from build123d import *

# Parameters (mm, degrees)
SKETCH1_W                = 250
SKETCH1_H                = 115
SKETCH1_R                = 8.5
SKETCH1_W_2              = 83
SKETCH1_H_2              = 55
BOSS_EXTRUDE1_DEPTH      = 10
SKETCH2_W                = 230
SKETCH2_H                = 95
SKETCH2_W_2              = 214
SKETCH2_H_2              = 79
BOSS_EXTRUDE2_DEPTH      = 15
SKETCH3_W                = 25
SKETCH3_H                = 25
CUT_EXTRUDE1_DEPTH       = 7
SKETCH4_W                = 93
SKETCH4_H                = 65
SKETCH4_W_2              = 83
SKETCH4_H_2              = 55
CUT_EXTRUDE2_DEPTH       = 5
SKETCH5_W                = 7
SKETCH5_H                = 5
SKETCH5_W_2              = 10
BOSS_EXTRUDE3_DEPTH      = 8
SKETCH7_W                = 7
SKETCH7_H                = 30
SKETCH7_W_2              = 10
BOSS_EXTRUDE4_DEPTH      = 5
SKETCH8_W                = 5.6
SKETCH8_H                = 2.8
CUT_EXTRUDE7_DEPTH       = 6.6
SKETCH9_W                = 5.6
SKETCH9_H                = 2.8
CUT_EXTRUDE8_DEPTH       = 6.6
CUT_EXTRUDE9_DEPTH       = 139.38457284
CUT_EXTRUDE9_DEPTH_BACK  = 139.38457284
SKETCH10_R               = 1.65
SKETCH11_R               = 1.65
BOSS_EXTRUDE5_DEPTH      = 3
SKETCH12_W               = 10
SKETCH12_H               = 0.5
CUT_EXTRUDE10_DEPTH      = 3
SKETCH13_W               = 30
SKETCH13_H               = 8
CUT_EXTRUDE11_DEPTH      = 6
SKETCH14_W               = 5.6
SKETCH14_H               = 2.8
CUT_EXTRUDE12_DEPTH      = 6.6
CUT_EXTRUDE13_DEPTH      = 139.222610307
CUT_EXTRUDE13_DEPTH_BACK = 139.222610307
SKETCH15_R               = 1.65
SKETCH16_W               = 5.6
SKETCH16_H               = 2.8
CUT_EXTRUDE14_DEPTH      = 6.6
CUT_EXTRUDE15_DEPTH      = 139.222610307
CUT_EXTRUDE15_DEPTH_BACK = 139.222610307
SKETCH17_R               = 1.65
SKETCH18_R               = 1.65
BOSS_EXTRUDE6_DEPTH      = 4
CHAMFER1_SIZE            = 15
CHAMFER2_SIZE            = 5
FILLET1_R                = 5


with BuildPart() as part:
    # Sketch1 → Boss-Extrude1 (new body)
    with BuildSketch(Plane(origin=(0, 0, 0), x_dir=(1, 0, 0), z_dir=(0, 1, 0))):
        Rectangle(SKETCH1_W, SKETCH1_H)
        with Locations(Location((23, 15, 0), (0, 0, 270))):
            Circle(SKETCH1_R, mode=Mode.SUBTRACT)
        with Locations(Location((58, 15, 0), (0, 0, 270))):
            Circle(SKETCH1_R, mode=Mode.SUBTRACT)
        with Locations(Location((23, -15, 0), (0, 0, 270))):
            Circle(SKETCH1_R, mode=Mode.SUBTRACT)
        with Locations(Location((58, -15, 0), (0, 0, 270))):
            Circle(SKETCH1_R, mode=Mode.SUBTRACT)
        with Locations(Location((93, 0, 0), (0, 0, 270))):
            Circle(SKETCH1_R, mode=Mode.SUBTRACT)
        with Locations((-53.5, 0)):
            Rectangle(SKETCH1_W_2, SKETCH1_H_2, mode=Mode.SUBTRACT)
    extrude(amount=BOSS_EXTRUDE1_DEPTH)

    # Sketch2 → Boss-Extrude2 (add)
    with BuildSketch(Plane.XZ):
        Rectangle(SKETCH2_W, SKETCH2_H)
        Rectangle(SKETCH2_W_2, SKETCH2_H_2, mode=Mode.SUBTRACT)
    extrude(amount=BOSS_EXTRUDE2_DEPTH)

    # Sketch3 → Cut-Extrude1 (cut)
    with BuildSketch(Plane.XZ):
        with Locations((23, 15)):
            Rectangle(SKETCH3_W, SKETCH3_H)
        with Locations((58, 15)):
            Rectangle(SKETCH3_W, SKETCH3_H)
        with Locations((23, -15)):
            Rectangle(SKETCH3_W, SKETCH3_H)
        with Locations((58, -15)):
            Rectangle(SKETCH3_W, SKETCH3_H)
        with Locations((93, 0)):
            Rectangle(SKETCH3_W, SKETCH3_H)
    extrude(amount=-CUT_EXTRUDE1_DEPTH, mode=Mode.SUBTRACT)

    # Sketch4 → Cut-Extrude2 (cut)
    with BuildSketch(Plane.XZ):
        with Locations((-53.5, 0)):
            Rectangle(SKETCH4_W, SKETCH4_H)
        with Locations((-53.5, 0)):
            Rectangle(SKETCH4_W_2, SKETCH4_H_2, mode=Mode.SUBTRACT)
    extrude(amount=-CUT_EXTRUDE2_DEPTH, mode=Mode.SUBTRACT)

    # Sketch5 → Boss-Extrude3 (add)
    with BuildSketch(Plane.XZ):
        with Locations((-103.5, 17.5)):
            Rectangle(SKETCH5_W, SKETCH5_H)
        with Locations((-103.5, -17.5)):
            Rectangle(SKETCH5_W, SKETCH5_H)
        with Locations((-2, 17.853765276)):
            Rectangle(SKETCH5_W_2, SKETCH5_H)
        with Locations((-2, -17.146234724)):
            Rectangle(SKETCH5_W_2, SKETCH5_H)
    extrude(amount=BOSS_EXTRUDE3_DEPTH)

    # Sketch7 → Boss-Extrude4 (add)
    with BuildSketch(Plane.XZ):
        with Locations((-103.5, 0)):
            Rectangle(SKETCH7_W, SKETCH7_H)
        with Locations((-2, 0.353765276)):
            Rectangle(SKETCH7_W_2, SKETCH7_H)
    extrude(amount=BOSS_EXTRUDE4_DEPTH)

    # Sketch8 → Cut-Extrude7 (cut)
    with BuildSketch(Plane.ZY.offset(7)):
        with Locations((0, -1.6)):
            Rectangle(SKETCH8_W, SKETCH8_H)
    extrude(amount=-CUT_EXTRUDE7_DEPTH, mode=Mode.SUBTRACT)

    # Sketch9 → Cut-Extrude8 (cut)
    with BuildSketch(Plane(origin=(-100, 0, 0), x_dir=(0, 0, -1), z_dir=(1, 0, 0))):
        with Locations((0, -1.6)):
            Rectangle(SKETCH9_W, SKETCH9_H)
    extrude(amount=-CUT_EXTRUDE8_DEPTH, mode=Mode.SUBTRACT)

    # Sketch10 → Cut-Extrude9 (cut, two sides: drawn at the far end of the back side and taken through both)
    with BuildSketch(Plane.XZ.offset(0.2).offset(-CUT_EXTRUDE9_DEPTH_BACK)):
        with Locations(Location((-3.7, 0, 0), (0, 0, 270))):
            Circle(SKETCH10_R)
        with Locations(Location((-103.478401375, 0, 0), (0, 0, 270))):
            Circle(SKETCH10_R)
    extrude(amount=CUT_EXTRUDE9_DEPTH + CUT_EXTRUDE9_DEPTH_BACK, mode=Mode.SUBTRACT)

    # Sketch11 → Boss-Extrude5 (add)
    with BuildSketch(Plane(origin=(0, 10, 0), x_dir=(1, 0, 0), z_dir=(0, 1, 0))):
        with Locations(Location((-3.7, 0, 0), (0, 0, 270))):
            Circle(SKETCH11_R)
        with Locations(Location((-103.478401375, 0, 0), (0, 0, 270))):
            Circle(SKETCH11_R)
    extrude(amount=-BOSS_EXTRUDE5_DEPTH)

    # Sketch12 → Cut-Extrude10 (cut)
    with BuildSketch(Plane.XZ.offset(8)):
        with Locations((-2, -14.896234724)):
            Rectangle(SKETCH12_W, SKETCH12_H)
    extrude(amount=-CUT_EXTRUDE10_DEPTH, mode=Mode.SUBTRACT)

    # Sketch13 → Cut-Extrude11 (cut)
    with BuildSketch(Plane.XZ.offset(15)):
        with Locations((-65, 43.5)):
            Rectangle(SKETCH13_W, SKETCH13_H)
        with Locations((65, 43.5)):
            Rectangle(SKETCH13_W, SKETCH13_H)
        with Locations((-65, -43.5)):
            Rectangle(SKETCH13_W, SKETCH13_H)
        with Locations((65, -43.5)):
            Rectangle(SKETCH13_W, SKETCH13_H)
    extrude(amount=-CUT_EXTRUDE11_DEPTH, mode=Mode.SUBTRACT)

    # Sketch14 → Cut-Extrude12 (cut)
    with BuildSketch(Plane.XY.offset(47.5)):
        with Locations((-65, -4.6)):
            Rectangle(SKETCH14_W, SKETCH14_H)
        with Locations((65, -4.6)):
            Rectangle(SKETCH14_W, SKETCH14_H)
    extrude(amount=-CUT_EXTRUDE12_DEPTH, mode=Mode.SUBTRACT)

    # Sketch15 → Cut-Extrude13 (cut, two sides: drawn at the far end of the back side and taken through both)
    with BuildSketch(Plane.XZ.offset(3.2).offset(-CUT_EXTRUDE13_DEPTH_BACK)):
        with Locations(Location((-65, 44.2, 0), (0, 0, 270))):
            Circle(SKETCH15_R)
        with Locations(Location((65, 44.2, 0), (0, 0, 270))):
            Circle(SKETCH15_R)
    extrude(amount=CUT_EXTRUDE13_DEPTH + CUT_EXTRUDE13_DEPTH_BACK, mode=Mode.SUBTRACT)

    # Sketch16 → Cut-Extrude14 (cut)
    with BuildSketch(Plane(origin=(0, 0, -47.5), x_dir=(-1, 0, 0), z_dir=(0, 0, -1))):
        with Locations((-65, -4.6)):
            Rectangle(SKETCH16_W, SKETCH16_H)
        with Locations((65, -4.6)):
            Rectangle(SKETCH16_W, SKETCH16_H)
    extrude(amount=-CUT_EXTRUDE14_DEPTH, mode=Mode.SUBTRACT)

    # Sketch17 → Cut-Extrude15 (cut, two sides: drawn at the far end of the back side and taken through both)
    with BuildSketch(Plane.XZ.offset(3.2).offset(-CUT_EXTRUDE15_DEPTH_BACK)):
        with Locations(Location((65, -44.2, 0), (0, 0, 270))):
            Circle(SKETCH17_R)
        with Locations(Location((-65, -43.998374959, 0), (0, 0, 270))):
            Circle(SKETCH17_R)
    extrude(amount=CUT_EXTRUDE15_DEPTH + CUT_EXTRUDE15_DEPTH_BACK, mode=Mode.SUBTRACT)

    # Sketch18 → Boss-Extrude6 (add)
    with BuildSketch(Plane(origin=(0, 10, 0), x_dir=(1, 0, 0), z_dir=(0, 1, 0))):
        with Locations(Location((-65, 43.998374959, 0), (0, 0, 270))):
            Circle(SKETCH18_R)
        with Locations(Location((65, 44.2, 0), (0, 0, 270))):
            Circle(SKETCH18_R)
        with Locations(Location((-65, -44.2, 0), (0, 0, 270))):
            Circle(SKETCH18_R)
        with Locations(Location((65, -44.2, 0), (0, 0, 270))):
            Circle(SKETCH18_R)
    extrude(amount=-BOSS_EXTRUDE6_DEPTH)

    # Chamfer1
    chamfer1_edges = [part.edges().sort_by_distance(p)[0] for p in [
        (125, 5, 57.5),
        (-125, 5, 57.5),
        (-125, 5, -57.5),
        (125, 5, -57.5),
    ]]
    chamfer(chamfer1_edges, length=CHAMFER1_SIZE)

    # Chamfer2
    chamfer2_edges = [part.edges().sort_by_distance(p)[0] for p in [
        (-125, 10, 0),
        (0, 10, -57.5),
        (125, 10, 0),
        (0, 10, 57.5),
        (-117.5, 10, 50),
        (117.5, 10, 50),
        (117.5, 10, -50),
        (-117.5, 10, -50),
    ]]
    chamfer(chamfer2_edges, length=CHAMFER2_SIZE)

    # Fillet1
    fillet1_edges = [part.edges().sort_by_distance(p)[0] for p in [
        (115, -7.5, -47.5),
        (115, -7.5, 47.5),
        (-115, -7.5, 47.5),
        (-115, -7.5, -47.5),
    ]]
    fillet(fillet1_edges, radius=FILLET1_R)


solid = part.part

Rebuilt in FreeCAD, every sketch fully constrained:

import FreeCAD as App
import Part
import Sketcher

V = App.Vector


def edges_at(feature, points):
    """Names of the edges that pass closest to the given points."""
    edges = feature.Shape.Edges
    near = lambda p: min(range(len(edges)), key=lambda i: edges[i].distToShape(Part.Vertex(*p))[0])
    return sorted({f"Edge{near(p) + 1}" for p in points})

doc = App.newDocument("Part")
params = doc.addObject("Spreadsheet::Sheet", "Params")
for row, (alias, value) in enumerate([
    ("sketch1_diameter", "17 mm"),
    ("sketch1_width", "250 mm"),
    ("sketch1_width2", "83 mm"),
    ("sketch1_height", "115 mm"),
    ("sketch1_height2", "55 mm"),
    ("pad1_length", "10 mm"),
    ("sketch2_width", "230 mm"),
    ("sketch2_width2", "214 mm"),
    ("sketch2_height", "95 mm"),
    ("sketch2_height2", "79 mm"),
    ("pad2_length", "15 mm"),
    ("sketch3_width", "25 mm"),
    ("pocket1_length", "7 mm"),
    ("sketch4_width", "93 mm"),
    ("sketch4_width2", "83 mm"),
    ("sketch4_height", "65 mm"),
    ("sketch4_height2", "55 mm"),
    ("pocket2_length", "5 mm"),
    ("sketch5_width", "7 mm"),
    ("sketch5_width2", "10 mm"),
    ("sketch5_height", "5 mm"),
    ("pad3_length", "8 mm"),
    ("sketch6_width", "7 mm"),
    ("sketch6_width2", "10 mm"),
    ("sketch6_height", "30 mm"),
    ("pad4_length", "5 mm"),
    ("sketch7_width", "2.8 mm"),
    ("sketch7_height", "5.6 mm"),
    ("pocket3_length", "6.6 mm"),
    ("sketch8_width", "2.8 mm"),
    ("sketch8_height", "5.6 mm"),
    ("pocket4_length", "6.6 mm"),
    ("sketch9_diameter", "3.3 mm"),
    ("sketch10_diameter", "3.3 mm"),
    ("pad5_length", "3 mm"),
    ("sketch11_width", "10 mm"),
    ("sketch11_height", "0.5 mm"),
    ("pocket6_length", "3 mm"),
    ("sketch12_width", "30 mm"),
    ("sketch12_height", "8 mm"),
    ("pocket7_length", "6 mm"),
    ("sketch13_width", "5.6 mm"),
    ("sketch13_height", "2.8 mm"),
    ("pocket8_length", "6.6 mm"),
    ("sketch14_diameter", "3.3 mm"),
    ("sketch15_width", "5.6 mm"),
    ("sketch15_height", "2.8 mm"),
    ("pocket10_length", "6.6 mm"),
    ("sketch16_diameter", "3.3 mm"),
    ("sketch17_diameter", "3.3 mm"),
    ("pad6_length", "4 mm"),
    ("chamfer_size", "15 mm"),
    ("chamfer2_size", "5 mm"),
    ("fillet_radius", "5 mm"),
], start=1):
    params.set(f"A{row}", alias)
    params.set(f"B{row}", "=" + value)
    params.setAlias(f"B{row}", alias)

body = doc.addObject("PartDesign::Body", "Body")

# Sketch on XZ plane
sketch1 = doc.addObject("Sketcher::SketchObject", "Sketch")
body.addObject(sketch1)
sketch1.AttachmentSupport = (doc.XZ_Plane, [""])
sketch1.MapMode = "FlatFace"
sketch1.addGeometry([
    Part.LineSegment(V(-125, -58, 0), V(-125, 58, 0)),  # 0
    Part.LineSegment(V(-125, 58, 0), V(125, 58, 0)),  # 1
    Part.LineSegment(V(125, 58, 0), V(125, -58, 0)),  # 2
    Part.LineSegment(V(125, -58, 0), V(-125, -58, 0)),  # 3
    Part.Circle(V(23, 15, 0), V(0, 0, 1), 8),  # 4
    Part.Circle(V(58, 15, 0), V(0, 0, 1), 8),  # 5
    Part.LineSegment(V(-12, 28, 0), V(-95, 28, 0)),  # 6
    Part.LineSegment(V(-95, 28, 0), V(-95, -28, 0)),  # 7
    Part.LineSegment(V(-95, -28, 0), V(-12, -28, 0)),  # 8
    Part.LineSegment(V(-12, -28, 0), V(-12, 28, 0)),  # 9
    Part.Circle(V(93, 0, 0), V(0, 0, 1), 8),  # 10
    Part.Circle(V(23, -15, 0), V(0, 0, 1), 8),  # 11
    Part.Circle(V(58, -15, 0), V(0, 0, 1), 8),  # 12
], False)
sketch1.addConstraint([
    Sketcher.Constraint("Coincident", 0, 2, 1, 1),
    Sketcher.Constraint("Coincident", 1, 2, 2, 1),
    Sketcher.Constraint("Coincident", 2, 2, 3, 1),
    Sketcher.Constraint("Coincident", 3, 2, 0, 1),
    Sketcher.Constraint("Coincident", 6, 2, 7, 1),
    Sketcher.Constraint("Coincident", 7, 2, 8, 1),
    Sketcher.Constraint("Coincident", 8, 2, 9, 1),
    Sketcher.Constraint("Coincident", 9, 2, 6, 1),
    Sketcher.Constraint("Vertical", 0),
    Sketcher.Constraint("Horizontal", 1),
    Sketcher.Constraint("Vertical", 2),
    Sketcher.Constraint("Horizontal", 3),
    Sketcher.Constraint("Horizontal", 6),
    Sketcher.Constraint("Vertical", 7),
    Sketcher.Constraint("Horizontal", 8),
    Sketcher.Constraint("Vertical", 9),
    Sketcher.Constraint("Equal", 4, 5),
    Sketcher.Constraint("Equal", 5, 10),
    Sketcher.Constraint("Equal", 10, 11),
    Sketcher.Constraint("Equal", 11, 12),
    Sketcher.Constraint("Symmetric", 0, 2, 2, 2, -1, 1),
    Sketcher.Constraint("Symmetric", 4, 3, 11, 3, -1),
    Sketcher.Constraint("Symmetric", 5, 3, 12, 3, -1),
    Sketcher.Constraint("PointOnObject", 10, 3, -1),
    Sketcher.Constraint("Horizontal", 4, 3, 5, 3),
    Sketcher.Constraint("Diameter", 4, 17.0),
    Sketcher.Constraint("DistanceX", 1, 1, 1, 2, 250.0),
    Sketcher.Constraint("DistanceX", 6, 2, 6, 1, 83.0),
    Sketcher.Constraint("DistanceY", 0, 1, 0, 2, 115.0),
    Sketcher.Constraint("DistanceY", 7, 2, 7, 1, 55.0),
    Sketcher.Constraint("DistanceX", -1, 1, 4, 3, 23.0),
    Sketcher.Constraint("DistanceY", -1, 1, 4, 3, 15.0),
    Sketcher.Constraint("DistanceX", -1, 1, 5, 3, 58.0),
    Sketcher.Constraint("DistanceX", -1, 1, 10, 3, 93.0),
    Sketcher.Constraint("DistanceX", 6, 2, -1, 1, 95.0),
    Sketcher.Constraint("DistanceY", 6, 2, 0, 2, 30.0),
])
sketch1.setExpression("Constraints[25]", "Params.sketch1_diameter")
sketch1.setExpression("Constraints[26]", "Params.sketch1_width")
sketch1.setExpression("Constraints[27]", "Params.sketch1_width2")
sketch1.setExpression("Constraints[28]", "Params.sketch1_height")
sketch1.setExpression("Constraints[29]", "Params.sketch1_height2")
pad1 = doc.addObject("PartDesign::Pad", "Pad")
body.addObject(pad1)
pad1.Profile = sketch1
pad1.setExpression("Length", "Params.pad1_length")
pad1.Reversed = True

# Sketch on XZ plane
sketch2 = doc.addObject("Sketcher::SketchObject", "Sketch001")
body.addObject(sketch2)
sketch2.AttachmentSupport = (doc.XZ_Plane, [""])
sketch2.MapMode = "FlatFace"
sketch2.addGeometry([
    Part.LineSegment(V(-115, 48, 0), V(-115, -48, 0)),  # 0
    Part.LineSegment(V(-115, -48, 0), V(115, -48, 0)),  # 1
    Part.LineSegment(V(115, -48, 0), V(115, 48, 0)),  # 2
    Part.LineSegment(V(115, 48, 0), V(-115, 48, 0)),  # 3
    Part.LineSegment(V(107, -40, 0), V(-107, -40, 0)),  # 4
    Part.LineSegment(V(-107, -40, 0), V(-107, 40, 0)),  # 5
    Part.LineSegment(V(-107, 40, 0), V(107, 40, 0)),  # 6
    Part.LineSegment(V(107, 40, 0), V(107, -40, 0)),  # 7
], False)
sketch2.addConstraint([
    Sketcher.Constraint("Coincident", 0, 2, 1, 1),
    Sketcher.Constraint("Coincident", 1, 2, 2, 1),
    Sketcher.Constraint("Coincident", 2, 2, 3, 1),
    Sketcher.Constraint("Coincident", 3, 2, 0, 1),
    Sketcher.Constraint("Coincident", 4, 2, 5, 1),
    Sketcher.Constraint("Coincident", 5, 2, 6, 1),
    Sketcher.Constraint("Coincident", 6, 2, 7, 1),
    Sketcher.Constraint("Coincident", 7, 2, 4, 1),
    Sketcher.Constraint("Vertical", 0),
    Sketcher.Constraint("Horizontal", 1),
    Sketcher.Constraint("Vertical", 2),
    Sketcher.Constraint("Horizontal", 3),
    Sketcher.Constraint("Horizontal", 4),
    Sketcher.Constraint("Vertical", 5),
    Sketcher.Constraint("Horizontal", 6),
    Sketcher.Constraint("Vertical", 7),
    Sketcher.Constraint("Symmetric", 0, 2, 2, 2, -1, 1),
    Sketcher.Constraint("Symmetric", 4, 2, 6, 2, -1, 1),
    Sketcher.Constraint("DistanceX", 1, 1, 1, 2, 230.0),
    Sketcher.Constraint("DistanceX", 4, 2, 4, 1, 214.0),
    Sketcher.Constraint("DistanceY", 0, 2, 0, 1, 95.0),
    Sketcher.Constraint("DistanceY", 5, 1, 5, 2, 79.0),
])
sketch2.setExpression("Constraints[18]", "Params.sketch2_width")
sketch2.setExpression("Constraints[19]", "Params.sketch2_width2")
sketch2.setExpression("Constraints[20]", "Params.sketch2_height")
sketch2.setExpression("Constraints[21]", "Params.sketch2_height2")
pad2 = doc.addObject("PartDesign::Pad", "Pad001")
body.addObject(pad2)
pad2.Profile = sketch2
pad2.setExpression("Length", "Params.pad2_length")

# Sketch on XZ plane
sketch3 = doc.addObject("Sketcher::SketchObject", "Sketch002")
body.addObject(sketch3)
sketch3.AttachmentSupport = (doc.XZ_Plane, [""])
sketch3.MapMode = "FlatFace"
sketch3.addGeometry([
    Part.LineSegment(V(10, 28, 0), V(10, 2, 0)),  # 0
    Part.LineSegment(V(10, 2, 0), V(36, 2, 0)),  # 1
    Part.LineSegment(V(36, 2, 0), V(36, 28, 0)),  # 2
    Part.LineSegment(V(36, 28, 0), V(10, 28, 0)),  # 3
    Part.LineSegment(V(46, 28, 0), V(46, 2, 0)),  # 4
    Part.LineSegment(V(46, 2, 0), V(70, 2, 0)),  # 5
    Part.LineSegment(V(70, 2, 0), V(70, 28, 0)),  # 6
    Part.LineSegment(V(70, 28, 0), V(46, 28, 0)),  # 7
    Part.LineSegment(V(10, -2, 0), V(10, -28, 0)),  # 8
    Part.LineSegment(V(10, -28, 0), V(36, -28, 0)),  # 9
    Part.LineSegment(V(36, -28, 0), V(36, -2, 0)),  # 10
    Part.LineSegment(V(36, -2, 0), V(10, -2, 0)),  # 11
    Part.LineSegment(V(46, -2, 0), V(46, -28, 0)),  # 12
    Part.LineSegment(V(46, -28, 0), V(70, -28, 0)),  # 13
    Part.LineSegment(V(70, -28, 0), V(70, -2, 0)),  # 14
    Part.LineSegment(V(70, -2, 0), V(46, -2, 0)),  # 15
    Part.LineSegment(V(80, 12, 0), V(80, -12, 0)),  # 16
    Part.LineSegment(V(80, -12, 0), V(106, -12, 0)),  # 17
    Part.LineSegment(V(106, -12, 0), V(106, 12, 0)),  # 18
    Part.LineSegment(V(106, 12, 0), V(80, 12, 0)),  # 19
], False)
sketch3.addConstraint([
    Sketcher.Constraint("Coincident", 0, 2, 1, 1),
    Sketcher.Constraint("Coincident", 1, 2, 2, 1),
    Sketcher.Constraint("Coincident", 2, 2, 3, 1),
    Sketcher.Constraint("Coincident", 3, 2, 0, 1),
    Sketcher.Constraint("Coincident", 4, 2, 5, 1),
    Sketcher.Constraint("Coincident", 5, 2, 6, 1),
    Sketcher.Constraint("Coincident", 6, 2, 7, 1),
    Sketcher.Constraint("Coincident", 7, 2, 4, 1),
    Sketcher.Constraint("Coincident", 8, 2, 9, 1),
    Sketcher.Constraint("Coincident", 9, 2, 10, 1),
    Sketcher.Constraint("Coincident", 10, 2, 11, 1),
    Sketcher.Constraint("Coincident", 11, 2, 8, 1),
    Sketcher.Constraint("Coincident", 12, 2, 13, 1),
    Sketcher.Constraint("Coincident", 13, 2, 14, 1),
    Sketcher.Constraint("Coincident", 14, 2, 15, 1),
    Sketcher.Constraint("Coincident", 15, 2, 12, 1),
    Sketcher.Constraint("Coincident", 16, 2, 17, 1),
    Sketcher.Constraint("Coincident", 17, 2, 18, 1),
    Sketcher.Constraint("Coincident", 18, 2, 19, 1),
    Sketcher.Constraint("Coincident", 19, 2, 16, 1),
    Sketcher.Constraint("Vertical", 0),
    Sketcher.Constraint("Horizontal", 1),
    Sketcher.Constraint("Vertical", 2),
    Sketcher.Constraint("Horizontal", 3),
    Sketcher.Constraint("Vertical", 4),
    Sketcher.Constraint("Horizontal", 5),
    Sketcher.Constraint("Vertical", 6),
    Sketcher.Constraint("Horizontal", 7),
    Sketcher.Constraint("Vertical", 8),
    Sketcher.Constraint("Horizontal", 9),
    Sketcher.Constraint("Vertical", 10),
    Sketcher.Constraint("Horizontal", 11),
    Sketcher.Constraint("Vertical", 12),
    Sketcher.Constraint("Horizontal", 13),
    Sketcher.Constraint("Vertical", 14),
    Sketcher.Constraint("Horizontal", 15),
    Sketcher.Constraint("Vertical", 16),
    Sketcher.Constraint("Horizontal", 17),
    Sketcher.Constraint("Vertical", 18),
    Sketcher.Constraint("Horizontal", 19),
    Sketcher.Constraint("Symmetric", 3, 2, 8, 2, -1),
    Sketcher.Constraint("Symmetric", 1, 2, 10, 2, -1),
    Sketcher.Constraint("Symmetric", 7, 2, 12, 2, -1),
    Sketcher.Constraint("Symmetric", 5, 2, 14, 2, -1),
    Sketcher.Constraint("Horizontal", 1, 2, 4, 2),
    Sketcher.Constraint("Horizontal", 3, 2, 6, 2),
    Sketcher.Constraint("Equal", 3, 5),
    Sketcher.Constraint("Equal", 15, 17),
    Sketcher.Constraint("Equal", 19, 0),
    Sketcher.Constraint("Equal", 14, 16),
    Sketcher.Constraint("DistanceX", 1, 1, 1, 2, 25.0),
    Sketcher.Constraint("DistanceX", 1, 2, 4, 2, 10.0),
    Sketcher.Constraint("DistanceY", 8, 2, 0, 2, 30.0),
    Sketcher.Constraint("DistanceX", 14, 2, 16, 2, 10.0),
    Sketcher.Constraint("DistanceY", 16, 2, 14, 2, 10.0),
    Sketcher.Constraint("DistanceX", -1, 1, 0, 2, 10.5),
])
sketch3.setExpression("Constraints[50]", "Params.sketch3_width")
pocket1 = doc.addObject("PartDesign::Pocket", "Pocket")
body.addObject(pocket1)
pocket1.Profile = sketch3
pocket1.setExpression("Length", "Params.pocket1_length")

# Sketch on XZ plane
sketch4 = doc.addObject("Sketcher::SketchObject", "Sketch003")
body.addObject(sketch4)
sketch4.AttachmentSupport = (doc.XZ_Plane, [""])
sketch4.MapMode = "FlatFace"
sketch4.addGeometry([
    Part.LineSegment(V(-100, 32, 0), V(-100, -32, 0)),  # 0
    Part.LineSegment(V(-100, -32, 0), V(-7, -32, 0)),  # 1
    Part.LineSegment(V(-7, -32, 0), V(-7, 32, 0)),  # 2
    Part.LineSegment(V(-7, 32, 0), V(-100, 32, 0)),  # 3
    Part.LineSegment(V(-12, -28, 0), V(-95, -28, 0)),  # 4
    Part.LineSegment(V(-95, -28, 0), V(-95, 28, 0)),  # 5
    Part.LineSegment(V(-95, 28, 0), V(-12, 28, 0)),  # 6
    Part.LineSegment(V(-12, 28, 0), V(-12, -28, 0)),  # 7
], False)
sketch4.addConstraint([
    Sketcher.Constraint("Coincident", 0, 2, 1, 1),
    Sketcher.Constraint("Coincident", 1, 2, 2, 1),
    Sketcher.Constraint("Coincident", 2, 2, 3, 1),
    Sketcher.Constraint("Coincident", 3, 2, 0, 1),
    Sketcher.Constraint("Coincident", 4, 2, 5, 1),
    Sketcher.Constraint("Coincident", 5, 2, 6, 1),
    Sketcher.Constraint("Coincident", 6, 2, 7, 1),
    Sketcher.Constraint("Coincident", 7, 2, 4, 1),
    Sketcher.Constraint("Vertical", 0),
    Sketcher.Constraint("Horizontal", 1),
    Sketcher.Constraint("Vertical", 2),
    Sketcher.Constraint("Horizontal", 3),
    Sketcher.Constraint("Horizontal", 4),
    Sketcher.Constraint("Vertical", 5),
    Sketcher.Constraint("Horizontal", 6),
    Sketcher.Constraint("Vertical", 7),
    Sketcher.Constraint("DistanceX", 1, 1, 1, 2, 93.0),
    Sketcher.Constraint("DistanceX", 4, 2, 4, 1, 83.0),
    Sketcher.Constraint("DistanceY", 0, 2, 0, 1, 65.0),
    Sketcher.Constraint("DistanceY", 5, 1, 5, 2, 55.0),
    Sketcher.Constraint("DistanceX", 0, 2, -1, 1, 100.0),
    Sketcher.Constraint("DistanceX", 4, 2, -1, 1, 95.0),
    Sketcher.Constraint("DistanceY", 0, 2, 4, 2, 5.0),
    Sketcher.Constraint("DistanceY", 0, 2, -1, 1, 32.5),
])
sketch4.setExpression("Constraints[16]", "Params.sketch4_width")
sketch4.setExpression("Constraints[17]", "Params.sketch4_width2")
sketch4.setExpression("Constraints[18]", "Params.sketch4_height")
sketch4.setExpression("Constraints[19]", "Params.sketch4_height2")
pocket2 = doc.addObject("PartDesign::Pocket", "Pocket001")
body.addObject(pocket2)
pocket2.Profile = sketch4
pocket2.setExpression("Length", "Params.pocket2_length")

# Sketch on XZ plane
sketch5 = doc.addObject("Sketcher::SketchObject", "Sketch004")
body.addObject(sketch5)
sketch5.AttachmentSupport = (doc.XZ_Plane, [""])
sketch5.MapMode = "FlatFace"
sketch5.addGeometry([
    Part.LineSegment(V(-107, 20, 0), V(-107, 15, 0)),  # 0
    Part.LineSegment(V(-107, 15, 0), V(-100, 15, 0)),  # 1
    Part.LineSegment(V(-100, 15, 0), V(-100, 20, 0)),  # 2
    Part.LineSegment(V(-100, 20, 0), V(-107, 20, 0)),  # 3
    Part.LineSegment(V(-107, -15, 0), V(-107, -20, 0)),  # 4
    Part.LineSegment(V(-107, -20, 0), V(-100, -20, 0)),  # 5
    Part.LineSegment(V(-100, -20, 0), V(-100, -15, 0)),  # 6
    Part.LineSegment(V(-100, -15, 0), V(-107, -15, 0)),  # 7
    Part.LineSegment(V(-7, 20, 0), V(-7, 15, 0)),  # 8
    Part.LineSegment(V(-7, 15, 0), V(3, 15, 0)),  # 9
    Part.LineSegment(V(3, 15, 0), V(3, 20, 0)),  # 10
    Part.LineSegment(V(3, 20, 0), V(-7, 20, 0)),  # 11
    Part.LineSegment(V(-7, -15, 0), V(-7, -20, 0)),  # 12
    Part.LineSegment(V(-7, -20, 0), V(3, -20, 0)),  # 13
    Part.LineSegment(V(3, -20, 0), V(3, -15, 0)),  # 14
    Part.LineSegment(V(3, -15, 0), V(-7, -15, 0)),  # 15
], False)
sketch5.addConstraint([
    Sketcher.Constraint("Coincident", 0, 2, 1, 1),
    Sketcher.Constraint("Coincident", 1, 2, 2, 1),
    Sketcher.Constraint("Coincident", 2, 2, 3, 1),
    Sketcher.Constraint("Coincident", 3, 2, 0, 1),
    Sketcher.Constraint("Coincident", 4, 2, 5, 1),
    Sketcher.Constraint("Coincident", 5, 2, 6, 1),
    Sketcher.Constraint("Coincident", 6, 2, 7, 1),
    Sketcher.Constraint("Coincident", 7, 2, 4, 1),
    Sketcher.Constraint("Coincident", 8, 2, 9, 1),
    Sketcher.Constraint("Coincident", 9, 2, 10, 1),
    Sketcher.Constraint("Coincident", 10, 2, 11, 1),
    Sketcher.Constraint("Coincident", 11, 2, 8, 1),
    Sketcher.Constraint("Coincident", 12, 2, 13, 1),
    Sketcher.Constraint("Coincident", 13, 2, 14, 1),
    Sketcher.Constraint("Coincident", 14, 2, 15, 1),
    Sketcher.Constraint("Coincident", 15, 2, 12, 1),
    Sketcher.Constraint("Vertical", 0),
    Sketcher.Constraint("Horizontal", 1),
    Sketcher.Constraint("Vertical", 2),
    Sketcher.Constraint("Horizontal", 3),
    Sketcher.Constraint("Vertical", 4),
    Sketcher.Constraint("Horizontal", 5),
    Sketcher.Constraint("Vertical", 6),
    Sketcher.Constraint("Horizontal", 7),
    Sketcher.Constraint("Vertical", 8),
    Sketcher.Constraint("Horizontal", 9),
    Sketcher.Constraint("Vertical", 10),
    Sketcher.Constraint("Horizontal", 11),
    Sketcher.Constraint("Vertical", 12),
    Sketcher.Constraint("Horizontal", 13),
    Sketcher.Constraint("Vertical", 14),
    Sketcher.Constraint("Horizontal", 15),
    Sketcher.Constraint("Symmetric", 3, 2, 4, 2, -1),
    Sketcher.Constraint("Symmetric", 1, 2, 6, 2, -1),
    Sketcher.Constraint("Vertical", 11, 2, 12, 2),
    Sketcher.Constraint("Vertical", 10, 2, 13, 2),
    Sketcher.Constraint("Equal", 6, 8),
    Sketcher.Constraint("Equal", 10, 12),
    Sketcher.Constraint("DistanceX", 1, 1, 1, 2, 7.0),
    Sketcher.Constraint("DistanceX", 9, 1, 9, 2, 10.0),
    Sketcher.Constraint("DistanceY", 0, 2, 0, 1, 5.0),
    Sketcher.Constraint("DistanceX", 0, 2, -1, 1, 107.0),
    Sketcher.Constraint("DistanceY", -1, 1, 0, 2, 15.0),
    Sketcher.Constraint("DistanceX", 8, 2, -1, 1, 7.0),
    Sketcher.Constraint("DistanceY", 12, 2, 8, 2, 35.0),
    Sketcher.Constraint("DistanceY", -1, 1, 8, 2, 15.353765),
])
sketch5.setExpression("Constraints[38]", "Params.sketch5_width")
sketch5.setExpression("Constraints[39]", "Params.sketch5_width2")
sketch5.setExpression("Constraints[40]", "Params.sketch5_height")
pad3 = doc.addObject("PartDesign::Pad", "Pad002")
body.addObject(pad3)
pad3.Profile = sketch5
pad3.setExpression("Length", "Params.pad3_length")

# Sketch on XZ plane
sketch6 = doc.addObject("Sketcher::SketchObject", "Sketch005")
body.addObject(sketch6)
sketch6.AttachmentSupport = (doc.XZ_Plane, [""])
sketch6.MapMode = "FlatFace"
sketch6.addGeometry([
    Part.LineSegment(V(-107, 15, 0), V(-107, -15, 0)),  # 0
    Part.LineSegment(V(-107, -15, 0), V(-100, -15, 0)),  # 1
    Part.LineSegment(V(-100, -15, 0), V(-100, 15, 0)),  # 2
    Part.LineSegment(V(-100, 15, 0), V(-107, 15, 0)),  # 3
    Part.LineSegment(V(-7, 15, 0), V(-7, -15, 0)),  # 4
    Part.LineSegment(V(-7, -15, 0), V(3, -15, 0)),  # 5
    Part.LineSegment(V(3, -15, 0), V(3, 15, 0)),  # 6
    Part.LineSegment(V(3, 15, 0), V(-7, 15, 0)),  # 7
], False)
sketch6.addConstraint([
    Sketcher.Constraint("Coincident", 0, 2, 1, 1),
    Sketcher.Constraint("Coincident", 1, 2, 2, 1),
    Sketcher.Constraint("Coincident", 2, 2, 3, 1),
    Sketcher.Constraint("Coincident", 3, 2, 0, 1),
    Sketcher.Constraint("Coincident", 4, 2, 5, 1),
    Sketcher.Constraint("Coincident", 5, 2, 6, 1),
    Sketcher.Constraint("Coincident", 6, 2, 7, 1),
    Sketcher.Constraint("Coincident", 7, 2, 4, 1),
    Sketcher.Constraint("Vertical", 0),
    Sketcher.Constraint("Horizontal", 1),
    Sketcher.Constraint("Vertical", 2),
    Sketcher.Constraint("Horizontal", 3),
    Sketcher.Constraint("Vertical", 4),
    Sketcher.Constraint("Horizontal", 5),
    Sketcher.Constraint("Vertical", 6),
    Sketcher.Constraint("Horizontal", 7),
    Sketcher.Constraint("Equal", 2, 4),
    Sketcher.Constraint("DistanceX", 1, 1, 1, 2, 7.0),
    Sketcher.Constraint("DistanceX", 5, 1, 5, 2, 10.0),
    Sketcher.Constraint("DistanceY", 0, 2, 0, 1, 30.0),
    Sketcher.Constraint("DistanceX", 0, 2, -1, 1, 107.0),
    Sketcher.Constraint("DistanceY", 0, 2, -1, 1, 15.0),
    Sketcher.Constraint("DistanceX", 4, 2, -1, 1, 7.0),
    Sketcher.Constraint("DistanceY", 4, 2, -1, 1, 14.646235),
])
sketch6.setExpression("Constraints[17]", "Params.sketch6_width")
sketch6.setExpression("Constraints[18]", "Params.sketch6_width2")
sketch6.setExpression("Constraints[19]", "Params.sketch6_height")
pad4 = doc.addObject("PartDesign::Pad", "Pad003")
body.addObject(pad4)
pad4.Profile = sketch6
pad4.setExpression("Length", "Params.pad4_length")

# Sketch on YZ plane
sketch7 = doc.addObject("Sketcher::SketchObject", "Sketch006")
body.addObject(sketch7)
sketch7.AttachmentSupport = (doc.YZ_Plane, [""])
sketch7.MapMode = "FlatFace"
sketch7.AttachmentOffset = App.Placement(V(0, 0, -7), App.Rotation())
sketch7.addGeometry([
    Part.LineSegment(V(-0.2, -2.8, 0), V(-3, -2.8, 0)),
    Part.LineSegment(V(-3, -2.8, 0), V(-3, 2.8, 0)),
    Part.LineSegment(V(-3, 2.8, 0), V(-0.2, 2.8, 0)),
    Part.LineSegment(V(-0.2, 2.8, 0), V(-0.2, -2.8, 0)),
], False)
sketch7.addConstraint([
    Sketcher.Constraint("Coincident", 0, 2, 1, 1),
    Sketcher.Constraint("Coincident", 1, 2, 2, 1),
    Sketcher.Constraint("Coincident", 2, 2, 3, 1),
    Sketcher.Constraint("Coincident", 3, 2, 0, 1),
    Sketcher.Constraint("Horizontal", 0),
    Sketcher.Constraint("Vertical", 1),
    Sketcher.Constraint("Horizontal", 2),
    Sketcher.Constraint("Vertical", 3),
    Sketcher.Constraint("DistanceX", 0, 2, 0, 1, 2.8),
    Sketcher.Constraint("DistanceY", 1, 1, 1, 2, 5.6),
    Sketcher.Constraint("DistanceX", 0, 2, -1, 1, 3.0),
    Sketcher.Constraint("DistanceY", 0, 2, -1, 1, 2.8),
])
sketch7.setExpression("Constraints[8]", "Params.sketch7_width")
sketch7.setExpression("Constraints[9]", "Params.sketch7_height")
pocket3 = doc.addObject("PartDesign::Pocket", "Pocket002")
body.addObject(pocket3)
pocket3.Profile = sketch7
pocket3.setExpression("Length", "Params.pocket3_length")
pocket3.Reversed = True

# Sketch on YZ plane
sketch8 = doc.addObject("Sketcher::SketchObject", "Sketch007")
body.addObject(sketch8)
sketch8.AttachmentSupport = (doc.YZ_Plane, [""])
sketch8.MapMode = "FlatFace"
sketch8.AttachmentOffset = App.Placement(V(0, 0, -100), App.Rotation())
sketch8.addGeometry([
    Part.LineSegment(V(-0.2, 2.8, 0), V(-3, 2.8, 0)),
    Part.LineSegment(V(-3, 2.8, 0), V(-3, -2.8, 0)),
    Part.LineSegment(V(-3, -2.8, 0), V(-0.2, -2.8, 0)),
    Part.LineSegment(V(-0.2, -2.8, 0), V(-0.2, 2.8, 0)),
], False)
sketch8.addConstraint([
    Sketcher.Constraint("Coincident", 0, 2, 1, 1),
    Sketcher.Constraint("Coincident", 1, 2, 2, 1),
    Sketcher.Constraint("Coincident", 2, 2, 3, 1),
    Sketcher.Constraint("Coincident", 3, 2, 0, 1),
    Sketcher.Constraint("Horizontal", 0),
    Sketcher.Constraint("Vertical", 1),
    Sketcher.Constraint("Horizontal", 2),
    Sketcher.Constraint("Vertical", 3),
    Sketcher.Constraint("DistanceX", 0, 2, 0, 1, 2.8),
    Sketcher.Constraint("DistanceY", 1, 2, 1, 1, 5.6),
    Sketcher.Constraint("DistanceX", 0, 2, -1, 1, 3.0),
    Sketcher.Constraint("DistanceY", -1, 1, 0, 2, 2.8),
])
sketch8.setExpression("Constraints[8]", "Params.sketch8_width")
sketch8.setExpression("Constraints[9]", "Params.sketch8_height")
pocket4 = doc.addObject("PartDesign::Pocket", "Pocket003")
body.addObject(pocket4)
pocket4.Profile = sketch8
pocket4.setExpression("Length", "Params.pocket4_length")

# Sketch on XZ plane
sketch9 = doc.addObject("Sketcher::SketchObject", "Sketch008")
body.addObject(sketch9)
sketch9.AttachmentSupport = (doc.XZ_Plane, [""])
sketch9.MapMode = "FlatFace"
sketch9.AttachmentOffset = App.Placement(V(0, 0, 0.2), App.Rotation())
sketch9.addGeometry([
    Part.Circle(V(-3.7, 0, 0), V(0, 0, 1), 1.6),
    Part.Circle(V(-103.5, 0, 0), V(0, 0, 1), 1.6),
], False)
sketch9.addConstraint([
    Sketcher.Constraint("Equal", 0, 1),
    Sketcher.Constraint("PointOnObject", 0, 3, -1),
    Sketcher.Constraint("PointOnObject", 1, 3, -1),
    Sketcher.Constraint("Diameter", 0, 3.3),
    Sketcher.Constraint("DistanceX", 0, 3, -1, 1, 3.7),
    Sketcher.Constraint("DistanceX", 1, 3, -1, 1, 103.478401),
])
sketch9.setExpression("Constraints[3]", "Params.sketch9_diameter")
pocket5 = doc.addObject("PartDesign::Pocket", "Pocket004")
body.addObject(pocket5)
pocket5.Profile = sketch9
pocket5.Type = "ThroughAll"
pocket5.Midplane = True

# Sketch on XZ plane
sketch10 = doc.addObject("Sketcher::SketchObject", "Sketch009")
body.addObject(sketch10)
sketch10.AttachmentSupport = (doc.XZ_Plane, [""])
sketch10.MapMode = "FlatFace"
sketch10.AttachmentOffset = App.Placement(V(0, 0, -10), App.Rotation())
sketch10.addGeometry([
    Part.Circle(V(-3.7, 0, 0), V(0, 0, 1), 1.6),
    Part.Circle(V(-103.5, 0, 0), V(0, 0, 1), 1.6),
], False)
sketch10.addConstraint([
    Sketcher.Constraint("Equal", 0, 1),
    Sketcher.Constraint("PointOnObject", 0, 3, -1),
    Sketcher.Constraint("PointOnObject", 1, 3, -1),
    Sketcher.Constraint("Diameter", 0, 3.3),
    Sketcher.Constraint("DistanceX", 0, 3, -1, 1, 3.7),
    Sketcher.Constraint("DistanceX", 1, 3, -1, 1, 103.478401),
])
sketch10.setExpression("Constraints[3]", "Params.sketch10_diameter")
pad5 = doc.addObject("PartDesign::Pad", "Pad004")
body.addObject(pad5)
pad5.Profile = sketch10
pad5.setExpression("Length", "Params.pad5_length")

# Sketch on XZ plane
sketch11 = doc.addObject("Sketcher::SketchObject", "Sketch010")
body.addObject(sketch11)
sketch11.AttachmentSupport = (doc.XZ_Plane, [""])
sketch11.MapMode = "FlatFace"
sketch11.AttachmentOffset = App.Placement(V(0, 0, 8), App.Rotation())
sketch11.addGeometry([
    Part.LineSegment(V(-7, -14.6, 0), V(-7, -15.1, 0)),
    Part.LineSegment(V(-7, -15.1, 0), V(3, -15.1, 0)),
    Part.LineSegment(V(3, -15.1, 0), V(3, -14.6, 0)),
    Part.LineSegment(V(3, -14.6, 0), V(-7, -14.6, 0)),
], False)
sketch11.addConstraint([
    Sketcher.Constraint("Coincident", 0, 2, 1, 1),
    Sketcher.Constraint("Coincident", 1, 2, 2, 1),
    Sketcher.Constraint("Coincident", 2, 2, 3, 1),
    Sketcher.Constraint("Coincident", 3, 2, 0, 1),
    Sketcher.Constraint("Vertical", 0),
    Sketcher.Constraint("Horizontal", 1),
    Sketcher.Constraint("Vertical", 2),
    Sketcher.Constraint("Horizontal", 3),
    Sketcher.Constraint("DistanceX", 1, 1, 1, 2, 10.0),
    Sketcher.Constraint("DistanceY", 0, 2, 0, 1, 0.5),
    Sketcher.Constraint("DistanceX", 0, 2, -1, 1, 7.0),
    Sketcher.Constraint("DistanceY", 0, 2, -1, 1, 15.146235),
])
sketch11.setExpression("Constraints[8]", "Params.sketch11_width")
sketch11.setExpression("Constraints[9]", "Params.sketch11_height")
pocket6 = doc.addObject("PartDesign::Pocket", "Pocket005")
body.addObject(pocket6)
pocket6.Profile = sketch11
pocket6.setExpression("Length", "Params.pocket6_length")

# Sketch on XZ plane
sketch12 = doc.addObject("Sketcher::SketchObject", "Sketch011")
body.addObject(sketch12)
sketch12.AttachmentSupport = (doc.XZ_Plane, [""])
sketch12.MapMode = "FlatFace"
sketch12.AttachmentOffset = App.Placement(V(0, 0, 15), App.Rotation())
sketch12.addGeometry([
    Part.LineSegment(V(-80, 48, 0), V(-80, 40, 0)),  # 0
    Part.LineSegment(V(-80, 40, 0), V(-50, 40, 0)),  # 1
    Part.LineSegment(V(-50, 40, 0), V(-50, 48, 0)),  # 2
    Part.LineSegment(V(-50, 48, 0), V(-80, 48, 0)),  # 3
    Part.LineSegment(V(50, 48, 0), V(50, 40, 0)),  # 4
    Part.LineSegment(V(50, 40, 0), V(80, 40, 0)),  # 5
    Part.LineSegment(V(80, 40, 0), V(80, 48, 0)),  # 6
    Part.LineSegment(V(80, 48, 0), V(50, 48, 0)),  # 7
    Part.LineSegment(V(-80, -40, 0), V(-80, -48, 0)),  # 8
    Part.LineSegment(V(-80, -48, 0), V(-50, -48, 0)),  # 9
    Part.LineSegment(V(-50, -48, 0), V(-50, -40, 0)),  # 10
    Part.LineSegment(V(-50, -40, 0), V(-80, -40, 0)),  # 11
    Part.LineSegment(V(50, -40, 0), V(50, -48, 0)),  # 12
    Part.LineSegment(V(50, -48, 0), V(80, -48, 0)),  # 13
    Part.LineSegment(V(80, -48, 0), V(80, -40, 0)),  # 14
    Part.LineSegment(V(80, -40, 0), V(50, -40, 0)),  # 15
], False)
sketch12.addConstraint([
    Sketcher.Constraint("Coincident", 0, 2, 1, 1),
    Sketcher.Constraint("Coincident", 1, 2, 2, 1),
    Sketcher.Constraint("Coincident", 2, 2, 3, 1),
    Sketcher.Constraint("Coincident", 3, 2, 0, 1),
    Sketcher.Constraint("Coincident", 4, 2, 5, 1),
    Sketcher.Constraint("Coincident", 5, 2, 6, 1),
    Sketcher.Constraint("Coincident", 6, 2, 7, 1),
    Sketcher.Constraint("Coincident", 7, 2, 4, 1),
    Sketcher.Constraint("Coincident", 8, 2, 9, 1),
    Sketcher.Constraint("Coincident", 9, 2, 10, 1),
    Sketcher.Constraint("Coincident", 10, 2, 11, 1),
    Sketcher.Constraint("Coincident", 11, 2, 8, 1),
    Sketcher.Constraint("Coincident", 12, 2, 13, 1),
    Sketcher.Constraint("Coincident", 13, 2, 14, 1),
    Sketcher.Constraint("Coincident", 14, 2, 15, 1),
    Sketcher.Constraint("Coincident", 15, 2, 12, 1),
    Sketcher.Constraint("Vertical", 0),
    Sketcher.Constraint("Horizontal", 1),
    Sketcher.Constraint("Vertical", 2),
    Sketcher.Constraint("Horizontal", 3),
    Sketcher.Constraint("Vertical", 4),
    Sketcher.Constraint("Horizontal", 5),
    Sketcher.Constraint("Vertical", 6),
    Sketcher.Constraint("Horizontal", 7),
    Sketcher.Constraint("Vertical", 8),
    Sketcher.Constraint("Horizontal", 9),
    Sketcher.Constraint("Vertical", 10),
    Sketcher.Constraint("Horizontal", 11),
    Sketcher.Constraint("Vertical", 12),
    Sketcher.Constraint("Horizontal", 13),
    Sketcher.Constraint("Vertical", 14),
    Sketcher.Constraint("Horizontal", 15),
    Sketcher.Constraint("Symmetric", 6, 2, 8, 2, -1, 1),
    Sketcher.Constraint("Symmetric", 4, 2, 10, 2, -1, 1),
    Sketcher.Constraint("Symmetric", 2, 2, 12, 2, -1, 1),
    Sketcher.Constraint("Symmetric", 0, 2, 14, 2, -1, 1),
    Sketcher.Constraint("Symmetric", 1, 2, 4, 2, -2),
    Sketcher.Constraint("Symmetric", 3, 2, 6, 2, -2),
    Sketcher.Constraint("DistanceX", 1, 1, 1, 2, 30.0),
    Sketcher.Constraint("DistanceY", 0, 2, 0, 1, 8.0),
    Sketcher.Constraint("DistanceX", 0, 2, -1, 1, 80.0),
    Sketcher.Constraint("DistanceY", 8, 2, 0, 2, 87.0),
])
sketch12.setExpression("Constraints[38]", "Params.sketch12_width")
sketch12.setExpression("Constraints[39]", "Params.sketch12_height")
pocket7 = doc.addObject("PartDesign::Pocket", "Pocket006")
body.addObject(pocket7)
pocket7.Profile = sketch12
pocket7.setExpression("Length", "Params.pocket7_length")

# Sketch on XY plane
sketch13 = doc.addObject("Sketcher::SketchObject", "Sketch012")
body.addObject(sketch13)
sketch13.AttachmentSupport = (doc.XY_Plane, [""])
sketch13.MapMode = "FlatFace"
sketch13.AttachmentOffset = App.Placement(V(0, 0, 47.5), App.Rotation())
sketch13.addGeometry([
    Part.LineSegment(V(-67.8, -3.2, 0), V(-67.8, -6, 0)),  # 0
    Part.LineSegment(V(-67.8, -6, 0), V(-62.2, -6, 0)),  # 1
    Part.LineSegment(V(-62.2, -6, 0), V(-62.2, -3.2, 0)),  # 2
    Part.LineSegment(V(-62.2, -3.2, 0), V(-67.8, -3.2, 0)),  # 3
    Part.LineSegment(V(62.2, -3.2, 0), V(62.2, -6, 0)),  # 4
    Part.LineSegment(V(62.2, -6, 0), V(67.8, -6, 0)),  # 5
    Part.LineSegment(V(67.8, -6, 0), V(67.8, -3.2, 0)),  # 6
    Part.LineSegment(V(67.8, -3.2, 0), V(62.2, -3.2, 0)),  # 7
], False)
sketch13.addConstraint([
    Sketcher.Constraint("Coincident", 0, 2, 1, 1),
    Sketcher.Constraint("Coincident", 1, 2, 2, 1),
    Sketcher.Constraint("Coincident", 2, 2, 3, 1),
    Sketcher.Constraint("Coincident", 3, 2, 0, 1),
    Sketcher.Constraint("Coincident", 4, 2, 5, 1),
    Sketcher.Constraint("Coincident", 5, 2, 6, 1),
    Sketcher.Constraint("Coincident", 6, 2, 7, 1),
    Sketcher.Constraint("Coincident", 7, 2, 4, 1),
    Sketcher.Constraint("Vertical", 0),
    Sketcher.Constraint("Horizontal", 1),
    Sketcher.Constraint("Vertical", 2),
    Sketcher.Constraint("Horizontal", 3),
    Sketcher.Constraint("Vertical", 4),
    Sketcher.Constraint("Horizontal", 5),
    Sketcher.Constraint("Vertical", 6),
    Sketcher.Constraint("Horizontal", 7),
    Sketcher.Constraint("Symmetric", 1, 2, 4, 2, -2),
    Sketcher.Constraint("Symmetric", 3, 2, 6, 2, -2),
    Sketcher.Constraint("DistanceX", 1, 1, 1, 2, 5.6),
    Sketcher.Constraint("DistanceY", 0, 2, 0, 1, 2.8),
    Sketcher.Constraint("DistanceY", 0, 2, -1, 1, 6.0),
    Sketcher.Constraint("DistanceX", 0, 2, 4, 2, 130.0),
])
sketch13.setExpression("Constraints[18]", "Params.sketch13_width")
sketch13.setExpression("Constraints[19]", "Params.sketch13_height")
pocket8 = doc.addObject("PartDesign::Pocket", "Pocket007")
body.addObject(pocket8)
pocket8.Profile = sketch13
pocket8.setExpression("Length", "Params.pocket8_length")

# Sketch on XZ plane
sketch14 = doc.addObject("Sketcher::SketchObject", "Sketch013")
body.addObject(sketch14)
sketch14.AttachmentSupport = (doc.XZ_Plane, [""])
sketch14.MapMode = "FlatFace"
sketch14.AttachmentOffset = App.Placement(V(0, 0, 3.2), App.Rotation())
sketch14.addGeometry([
    Part.Circle(V(-65, 44.2, 0), V(0, 0, 1), 1.6),
    Part.Circle(V(65, 44.2, 0), V(0, 0, 1), 1.6),
], False)
sketch14.addConstraint([
    Sketcher.Constraint("Equal", 0, 1),
    Sketcher.Constraint("Symmetric", 0, 3, 1, 3, -2),
    Sketcher.Constraint("Diameter", 0, 3.3),
    Sketcher.Constraint("DistanceX", 0, 3, -1, 1, 65.0),
    Sketcher.Constraint("DistanceY", -1, 1, 0, 3, 44.2),
])
sketch14.setExpression("Constraints[2]", "Params.sketch14_diameter")
pocket9 = doc.addObject("PartDesign::Pocket", "Pocket008")
body.addObject(pocket9)
pocket9.Profile = sketch14
pocket9.Type = "ThroughAll"
pocket9.Midplane = True

# Sketch on XY plane
sketch15 = doc.addObject("Sketcher::SketchObject", "Sketch014")
body.addObject(sketch15)
sketch15.AttachmentSupport = (doc.XY_Plane, [""])
sketch15.MapMode = "FlatFace"
sketch15.AttachmentOffset = App.Placement(V(0, 0, -47.5), App.Rotation())
sketch15.addGeometry([
    Part.LineSegment(V(67.8, -3.2, 0), V(67.8, -6, 0)),  # 0
    Part.LineSegment(V(67.8, -6, 0), V(62.2, -6, 0)),  # 1
    Part.LineSegment(V(62.2, -6, 0), V(62.2, -3.2, 0)),  # 2
    Part.LineSegment(V(62.2, -3.2, 0), V(67.8, -3.2, 0)),  # 3
    Part.LineSegment(V(-62.2, -3.2, 0), V(-62.2, -6, 0)),  # 4
    Part.LineSegment(V(-62.2, -6, 0), V(-67.8, -6, 0)),  # 5
    Part.LineSegment(V(-67.8, -6, 0), V(-67.8, -3.2, 0)),  # 6
    Part.LineSegment(V(-67.8, -3.2, 0), V(-62.2, -3.2, 0)),  # 7
], False)
sketch15.addConstraint([
    Sketcher.Constraint("Coincident", 0, 2, 1, 1),
    Sketcher.Constraint("Coincident", 1, 2, 2, 1),
    Sketcher.Constraint("Coincident", 2, 2, 3, 1),
    Sketcher.Constraint("Coincident", 3, 2, 0, 1),
    Sketcher.Constraint("Coincident", 4, 2, 5, 1),
    Sketcher.Constraint("Coincident", 5, 2, 6, 1),
    Sketcher.Constraint("Coincident", 6, 2, 7, 1),
    Sketcher.Constraint("Coincident", 7, 2, 4, 1),
    Sketcher.Constraint("Vertical", 0),
    Sketcher.Constraint("Horizontal", 1),
    Sketcher.Constraint("Vertical", 2),
    Sketcher.Constraint("Horizontal", 3),
    Sketcher.Constraint("Vertical", 4),
    Sketcher.Constraint("Horizontal", 5),
    Sketcher.Constraint("Vertical", 6),
    Sketcher.Constraint("Horizontal", 7),
    Sketcher.Constraint("Symmetric", 1, 2, 4, 2, -2),
    Sketcher.Constraint("Symmetric", 3, 2, 6, 2, -2),
    Sketcher.Constraint("DistanceX", 1, 2, 1, 1, 5.6),
    Sketcher.Constraint("DistanceY", 0, 2, 0, 1, 2.8),
    Sketcher.Constraint("DistanceY", 0, 2, -1, 1, 6.0),
    Sketcher.Constraint("DistanceX", 4, 2, 0, 2, 130.0),
])
sketch15.setExpression("Constraints[18]", "Params.sketch15_width")
sketch15.setExpression("Constraints[19]", "Params.sketch15_height")
pocket10 = doc.addObject("PartDesign::Pocket", "Pocket009")
body.addObject(pocket10)
pocket10.Profile = sketch15
pocket10.setExpression("Length", "Params.pocket10_length")
pocket10.Reversed = True

# Sketch on XZ plane
sketch16 = doc.addObject("Sketcher::SketchObject", "Sketch015")
body.addObject(sketch16)
sketch16.AttachmentSupport = (doc.XZ_Plane, [""])
sketch16.MapMode = "FlatFace"
sketch16.AttachmentOffset = App.Placement(V(0, 0, 3.2), App.Rotation())
sketch16.addGeometry([
    Part.Circle(V(65, -44.2, 0), V(0, 0, 1), 1.6),
    Part.Circle(V(-65, -44, 0), V(0, 0, 1), 1.6),
], False)
sketch16.addConstraint([
    Sketcher.Constraint("Equal", 0, 1),
    Sketcher.Constraint("Diameter", 0, 3.3),
    Sketcher.Constraint("DistanceX", -1, 1, 0, 3, 65.0),
    Sketcher.Constraint("DistanceX", 1, 3, -1, 1, 65.0),
    Sketcher.Constraint("DistanceY", 0, 3, -1, 1, 44.2),
    Sketcher.Constraint("DistanceY", 1, 3, -1, 1, 43.998375),
])
sketch16.setExpression("Constraints[1]", "Params.sketch16_diameter")
pocket11 = doc.addObject("PartDesign::Pocket", "Pocket010")
body.addObject(pocket11)
pocket11.Profile = sketch16
pocket11.Type = "ThroughAll"
pocket11.Midplane = True

# Sketch on XZ plane
sketch17 = doc.addObject("Sketcher::SketchObject", "Sketch016")
body.addObject(sketch17)
sketch17.AttachmentSupport = (doc.XZ_Plane, [""])
sketch17.MapMode = "FlatFace"
sketch17.AttachmentOffset = App.Placement(V(0, 0, -10), App.Rotation())
sketch17.addGeometry([
    Part.Circle(V(-65, -44, 0), V(0, 0, 1), 1.6),
    Part.Circle(V(65, -44.2, 0), V(0, 0, 1), 1.6),
    Part.Circle(V(-65, 44.2, 0), V(0, 0, 1), 1.6),
    Part.Circle(V(65, 44.2, 0), V(0, 0, 1), 1.6),
], False)
sketch17.addConstraint([
    Sketcher.Constraint("Equal", 0, 1),
    Sketcher.Constraint("Equal", 1, 2),
    Sketcher.Constraint("Equal", 2, 3),
    Sketcher.Constraint("Symmetric", 1, 3, 2, 3, -1, 1),
    Sketcher.Constraint("Symmetric", 2, 3, 3, 3, -2),
    Sketcher.Constraint("Vertical", 0, 3, 2, 3),
    Sketcher.Constraint("Diameter", 0, 3.3),
    Sketcher.Constraint("DistanceX", 0, 3, -1, 1, 65.0),
    Sketcher.Constraint("DistanceY", 1, 3, -1, 1, 44.2),
    Sketcher.Constraint("DistanceY", 0, 3, -1, 1, 43.998375),
])
sketch17.setExpression("Constraints[6]", "Params.sketch17_diameter")
pad6 = doc.addObject("PartDesign::Pad", "Pad005")
body.addObject(pad6)
pad6.Profile = sketch17
pad6.setExpression("Length", "Params.pad6_length")
doc.recompute()

chamfer = doc.addObject("PartDesign::Chamfer", "Chamfer")
body.addObject(chamfer)
chamfer.Base = (pad6, edges_at(pad6, [
    (125, 5, 57.5),
    (-125, 5, 57.5),
    (-125, 5, -57.5),
    (125, 5, -57.5),
]))
chamfer.setExpression("Size", "Params.chamfer_size")
doc.recompute()

chamfer2 = doc.addObject("PartDesign::Chamfer", "Chamfer001")
body.addObject(chamfer2)
chamfer2.Base = (chamfer, edges_at(chamfer, [
    (-125, 10, 0),
    (0, 10, -57.5),
    (125, 10, 0),
    (0, 10, 57.5),
    (-117.5, 10, 50),
    (117.5, 10, 50),
    (117.5, 10, -50),
    (-117.5, 10, -50),
]))
chamfer2.setExpression("Size", "Params.chamfer2_size")
doc.recompute()

fillet = doc.addObject("PartDesign::Fillet", "Fillet")
body.addObject(fillet)
fillet.Base = (chamfer2, edges_at(chamfer2, [
    (115, -7.5, -47.5),
    (115, -7.5, 47.5),
    (-115, -7.5, 47.5),
    (-115, -7.5, -47.5),
]))
fillet.setExpression("Radius", "Params.fillet_radius")

doc.recompute()
